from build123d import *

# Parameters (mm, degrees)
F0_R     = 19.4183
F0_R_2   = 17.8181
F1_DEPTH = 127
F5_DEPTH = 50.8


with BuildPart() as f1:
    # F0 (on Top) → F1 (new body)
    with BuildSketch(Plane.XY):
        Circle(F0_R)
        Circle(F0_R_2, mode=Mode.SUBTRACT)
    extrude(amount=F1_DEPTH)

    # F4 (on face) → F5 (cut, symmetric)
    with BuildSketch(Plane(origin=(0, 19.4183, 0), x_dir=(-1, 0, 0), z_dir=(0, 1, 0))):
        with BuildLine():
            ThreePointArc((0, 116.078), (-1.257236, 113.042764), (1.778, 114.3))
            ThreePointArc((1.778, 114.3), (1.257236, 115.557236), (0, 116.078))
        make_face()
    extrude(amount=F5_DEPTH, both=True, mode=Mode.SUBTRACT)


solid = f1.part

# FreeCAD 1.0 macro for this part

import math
import FreeCAD as App
import Part
import Sketcher

V = App.Vector
Q = App.Units.Quantity

doc = App.newDocument("Part")
body = doc.addObject("PartDesign::Body", "Body")

sketch1 = doc.addObject("Sketcher::SketchObject", "Sketch")
body.addObject(sketch1)
sketch1.AttachmentSupport = (doc.XY_Plane, [""])
sketch1.MapMode = "FlatFace"
sketch1.addGeometry([
    Part.Circle(V(0, 0, 0), V(0, 0, 1), 19.4183),
    Part.Circle(V(0, 0, 0), V(0, 0, 1), 17.8181),
], False)
sketch1.addConstraint([
    Sketcher.Constraint("Coincident", 0, 3, -1, 1),
    Sketcher.Constraint("Coincident", 1, 3, -1, 1),
    Sketcher.Constraint("Diameter", 0, Q("1.529 in")),
    Sketcher.Constraint("Diameter", 1, Q("1.403 in")),
])
pad1 = doc.addObject("PartDesign::Pad", "Pad")
body.addObject(pad1)
pad1.Profile = sketch1
pad1.Length = Q("5 in")

sketch2 = doc.addObject("Sketcher::SketchObject", "Sketch001")
body.addObject(sketch2)
sketch2.AttachmentSupport = (doc.XZ_Plane, [""])
sketch2.MapMode = "FlatFace"
sketch2.AttachmentOffset = App.Placement(V(0, 0, -0.7645 * 25.4), App.Rotation())
sketch2.addGeometry([
    Part.ArcOfCircle(Part.Circle(V(0, 114.3, 0), V(0, 0, 1), 1.778), math.radians(179.999997), math.radians(450.000003)),
    Part.ArcOfCircle(Part.Circle(V(0, 114.3, 0), V(0, 0, 1), 1.778), math.radians(89.999984), math.radians(180.000016)),
], False)
sketch2.addConstraint([
    Sketcher.Constraint("Tangent", 0, 1, 1, 2),
    Sketcher.Constraint("Coincident", 1, 1, 0, 2),
    Sketcher.Constraint("PointOnObject", 0, 3, -2),
    Sketcher.Constraint("PointOnObject", 1, 1, -2),
    Sketcher.Constraint("Horizontal", 1, 3, 0, 1),
    Sketcher.Constraint("Radius", 0, Q("0.07 in")),
    Sketcher.Constraint("DistanceY", -1, 1, 0, 3, Q("4.5 in")),
])
pocket1 = doc.addObject("PartDesign::Pocket", "Pocket")
body.addObject(pocket1)
pocket1.Profile = sketch2
pocket1.Length = Q("4 in")
pocket1.Midplane = True

doc.recompute()
